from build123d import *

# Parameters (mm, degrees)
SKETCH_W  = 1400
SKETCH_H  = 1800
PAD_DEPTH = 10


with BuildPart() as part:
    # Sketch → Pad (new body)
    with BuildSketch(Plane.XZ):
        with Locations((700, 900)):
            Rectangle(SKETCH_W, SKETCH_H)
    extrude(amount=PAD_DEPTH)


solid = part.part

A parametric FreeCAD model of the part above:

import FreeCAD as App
import Part
import Sketcher
Q = App.Units.Quantity


def add_polygon(sketch, points):
    """Adds a closed chain of lines whose ends are joined by coincident constraints."""
    first, n = sketch.GeometryCount, len(points)
    for a, b in zip(points, points[1:] + points[:1]):
        sketch.addGeometry(Part.LineSegment(App.Vector(*a, 0), App.Vector(*b, 0)), False)
    for i in range(n):
        sketch.addConstraint(Sketcher.Constraint("Coincident", first + i, 2, first + (i + 1) % n, 1))

doc = App.newDocument("Part")
body = doc.addObject("PartDesign::Body", "Body")

# Sketch on XZ plane
sketch1 = doc.addObject("Sketcher::SketchObject", "Sketch")
body.addObject(sketch1)
sketch1.AttachmentSupport = (doc.XZ_Plane, [""])
sketch1.MapMode = "FlatFace"
add_polygon(sketch1, [(0, 1800), (0, 0), (1400, 0), (1400, 1800)])  # lines 0-3
sketch1.addConstraint([
    Sketcher.Constraint("Vertical", 0),
    Sketcher.Constraint("Horizontal", 1),
    Sketcher.Constraint("Vertical", 2),
    Sketcher.Constraint("Horizontal", 3),
    Sketcher.Constraint("Coincident", 0, 2, -1, 1),
    Sketcher.Constraint("DistanceX", 1, 1, 1, 2, Q("1400 mm")),
    Sketcher.Constraint("DistanceY", 0, 2, 0, 1, Q("1800 mm")),
])
pad1 = doc.addObject("PartDesign::Pad", "Pad")
body.addObject(pad1)
pad1.Profile = sketch1
pad1.Length = 10

doc.recompute()
